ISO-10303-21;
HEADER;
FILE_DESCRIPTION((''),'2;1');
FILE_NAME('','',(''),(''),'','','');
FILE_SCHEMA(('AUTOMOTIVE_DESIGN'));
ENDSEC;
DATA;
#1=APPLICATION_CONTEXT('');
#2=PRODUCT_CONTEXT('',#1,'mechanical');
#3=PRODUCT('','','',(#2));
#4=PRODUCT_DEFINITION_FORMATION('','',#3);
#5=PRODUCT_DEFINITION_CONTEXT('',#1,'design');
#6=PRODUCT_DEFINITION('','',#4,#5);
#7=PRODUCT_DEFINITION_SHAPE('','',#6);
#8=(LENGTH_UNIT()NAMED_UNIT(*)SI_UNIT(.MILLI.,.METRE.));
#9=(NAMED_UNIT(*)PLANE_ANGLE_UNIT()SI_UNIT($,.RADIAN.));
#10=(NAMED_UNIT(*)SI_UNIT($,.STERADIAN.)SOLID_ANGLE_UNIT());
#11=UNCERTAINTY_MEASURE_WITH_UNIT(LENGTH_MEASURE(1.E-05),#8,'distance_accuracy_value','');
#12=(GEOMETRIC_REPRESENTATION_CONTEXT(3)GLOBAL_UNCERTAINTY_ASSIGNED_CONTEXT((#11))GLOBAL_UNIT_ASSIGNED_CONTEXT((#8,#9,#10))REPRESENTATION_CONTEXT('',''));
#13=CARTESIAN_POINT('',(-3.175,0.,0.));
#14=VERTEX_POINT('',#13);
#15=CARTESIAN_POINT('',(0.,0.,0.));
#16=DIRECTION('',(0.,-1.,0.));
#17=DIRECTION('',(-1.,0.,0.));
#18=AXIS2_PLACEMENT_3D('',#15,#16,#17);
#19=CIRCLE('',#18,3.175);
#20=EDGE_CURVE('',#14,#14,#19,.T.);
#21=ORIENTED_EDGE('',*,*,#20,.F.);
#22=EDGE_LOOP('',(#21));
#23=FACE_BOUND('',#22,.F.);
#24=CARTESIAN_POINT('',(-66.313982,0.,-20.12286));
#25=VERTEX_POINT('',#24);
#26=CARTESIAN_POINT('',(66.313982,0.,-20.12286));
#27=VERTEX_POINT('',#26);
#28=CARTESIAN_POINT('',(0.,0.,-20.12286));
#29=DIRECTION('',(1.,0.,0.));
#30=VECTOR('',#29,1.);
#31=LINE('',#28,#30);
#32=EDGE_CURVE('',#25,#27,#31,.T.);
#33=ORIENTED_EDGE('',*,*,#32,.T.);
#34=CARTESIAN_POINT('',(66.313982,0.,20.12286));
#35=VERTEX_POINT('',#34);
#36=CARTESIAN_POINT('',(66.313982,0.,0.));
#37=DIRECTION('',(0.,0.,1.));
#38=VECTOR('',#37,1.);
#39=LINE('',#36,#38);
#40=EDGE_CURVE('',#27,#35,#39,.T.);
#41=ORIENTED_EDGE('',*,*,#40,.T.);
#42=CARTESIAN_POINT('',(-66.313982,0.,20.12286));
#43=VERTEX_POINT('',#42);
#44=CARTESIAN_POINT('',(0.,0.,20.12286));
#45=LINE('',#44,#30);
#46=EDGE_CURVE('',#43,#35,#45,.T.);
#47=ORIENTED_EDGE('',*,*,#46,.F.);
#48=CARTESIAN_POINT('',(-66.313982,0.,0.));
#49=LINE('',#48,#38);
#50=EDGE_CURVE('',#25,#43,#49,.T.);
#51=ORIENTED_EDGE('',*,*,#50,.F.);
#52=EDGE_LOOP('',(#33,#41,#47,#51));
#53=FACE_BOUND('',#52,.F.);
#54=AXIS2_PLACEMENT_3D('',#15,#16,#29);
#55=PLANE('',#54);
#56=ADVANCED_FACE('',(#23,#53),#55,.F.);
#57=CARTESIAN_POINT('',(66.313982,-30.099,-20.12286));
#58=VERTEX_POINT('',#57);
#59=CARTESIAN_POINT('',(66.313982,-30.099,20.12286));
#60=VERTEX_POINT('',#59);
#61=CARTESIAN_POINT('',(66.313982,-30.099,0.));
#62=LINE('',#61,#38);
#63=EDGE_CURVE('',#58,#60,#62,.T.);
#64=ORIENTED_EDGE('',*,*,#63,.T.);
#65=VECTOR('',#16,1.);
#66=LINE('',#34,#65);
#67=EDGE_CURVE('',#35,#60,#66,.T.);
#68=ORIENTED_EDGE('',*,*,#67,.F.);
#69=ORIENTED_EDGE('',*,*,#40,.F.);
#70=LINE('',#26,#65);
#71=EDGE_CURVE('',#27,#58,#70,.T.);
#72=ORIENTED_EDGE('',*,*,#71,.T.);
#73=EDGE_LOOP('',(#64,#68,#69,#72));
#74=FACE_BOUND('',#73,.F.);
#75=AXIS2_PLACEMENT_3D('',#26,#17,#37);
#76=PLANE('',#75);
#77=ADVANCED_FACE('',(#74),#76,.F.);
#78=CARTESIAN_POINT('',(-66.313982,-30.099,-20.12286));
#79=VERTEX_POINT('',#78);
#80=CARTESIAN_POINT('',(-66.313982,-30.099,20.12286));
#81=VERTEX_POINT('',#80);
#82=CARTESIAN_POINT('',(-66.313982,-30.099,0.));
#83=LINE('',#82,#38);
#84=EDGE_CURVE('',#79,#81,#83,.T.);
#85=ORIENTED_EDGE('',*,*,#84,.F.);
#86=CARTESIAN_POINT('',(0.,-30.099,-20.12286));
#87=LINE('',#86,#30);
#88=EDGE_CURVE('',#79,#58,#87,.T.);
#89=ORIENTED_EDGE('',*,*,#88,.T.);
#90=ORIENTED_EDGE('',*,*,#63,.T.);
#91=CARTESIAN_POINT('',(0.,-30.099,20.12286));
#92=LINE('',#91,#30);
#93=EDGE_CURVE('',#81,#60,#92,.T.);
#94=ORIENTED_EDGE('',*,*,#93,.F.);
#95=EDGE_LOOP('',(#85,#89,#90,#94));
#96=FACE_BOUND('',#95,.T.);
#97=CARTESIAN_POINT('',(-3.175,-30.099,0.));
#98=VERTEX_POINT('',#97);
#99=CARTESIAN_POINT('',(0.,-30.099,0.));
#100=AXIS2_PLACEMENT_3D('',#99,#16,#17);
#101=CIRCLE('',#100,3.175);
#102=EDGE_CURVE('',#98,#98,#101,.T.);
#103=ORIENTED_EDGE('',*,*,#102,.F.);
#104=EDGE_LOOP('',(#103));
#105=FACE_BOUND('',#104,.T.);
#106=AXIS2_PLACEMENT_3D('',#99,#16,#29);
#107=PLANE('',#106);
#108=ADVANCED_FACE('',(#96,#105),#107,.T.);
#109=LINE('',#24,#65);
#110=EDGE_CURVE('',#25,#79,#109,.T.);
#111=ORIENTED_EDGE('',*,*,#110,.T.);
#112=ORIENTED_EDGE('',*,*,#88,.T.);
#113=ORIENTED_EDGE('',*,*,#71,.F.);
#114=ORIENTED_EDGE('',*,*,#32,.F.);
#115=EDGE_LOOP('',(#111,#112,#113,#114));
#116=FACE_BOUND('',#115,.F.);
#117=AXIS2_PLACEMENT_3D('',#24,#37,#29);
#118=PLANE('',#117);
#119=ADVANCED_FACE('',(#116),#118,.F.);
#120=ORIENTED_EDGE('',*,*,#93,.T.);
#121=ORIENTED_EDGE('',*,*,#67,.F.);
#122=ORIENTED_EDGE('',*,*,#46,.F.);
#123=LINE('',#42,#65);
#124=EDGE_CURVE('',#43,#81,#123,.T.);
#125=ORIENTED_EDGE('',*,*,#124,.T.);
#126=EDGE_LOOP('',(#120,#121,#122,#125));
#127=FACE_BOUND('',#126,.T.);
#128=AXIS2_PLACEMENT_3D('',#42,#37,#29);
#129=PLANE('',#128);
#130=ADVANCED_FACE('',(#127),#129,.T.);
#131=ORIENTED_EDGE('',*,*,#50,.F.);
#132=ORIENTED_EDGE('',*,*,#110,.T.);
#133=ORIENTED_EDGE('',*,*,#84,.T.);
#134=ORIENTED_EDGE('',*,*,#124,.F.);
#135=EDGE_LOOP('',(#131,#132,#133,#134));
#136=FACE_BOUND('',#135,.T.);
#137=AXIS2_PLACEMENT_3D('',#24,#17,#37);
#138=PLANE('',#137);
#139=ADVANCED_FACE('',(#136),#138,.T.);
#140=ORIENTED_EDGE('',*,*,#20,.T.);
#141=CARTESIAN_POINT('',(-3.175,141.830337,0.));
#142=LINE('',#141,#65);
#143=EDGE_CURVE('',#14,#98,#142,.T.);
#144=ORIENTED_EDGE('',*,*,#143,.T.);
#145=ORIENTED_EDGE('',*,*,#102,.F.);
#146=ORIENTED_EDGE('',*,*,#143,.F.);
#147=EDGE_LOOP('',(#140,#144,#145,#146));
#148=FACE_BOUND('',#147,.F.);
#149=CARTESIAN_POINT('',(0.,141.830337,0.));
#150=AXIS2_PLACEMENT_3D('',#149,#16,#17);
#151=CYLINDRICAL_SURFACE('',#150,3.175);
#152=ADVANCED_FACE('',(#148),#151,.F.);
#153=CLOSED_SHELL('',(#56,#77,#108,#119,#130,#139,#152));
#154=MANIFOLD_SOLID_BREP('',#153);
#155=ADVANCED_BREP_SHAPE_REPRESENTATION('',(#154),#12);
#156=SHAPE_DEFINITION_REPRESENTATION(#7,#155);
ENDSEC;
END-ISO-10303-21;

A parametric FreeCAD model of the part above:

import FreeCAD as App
import Part
import Sketcher
from FreeCAD import Vector
Q = App.Units.Quantity


def add_polygon(sketch, points):
    """Adds a closed chain of lines whose ends are joined by coincident constraints."""
    first, n = sketch.GeometryCount, len(points)
    for a, b in zip(points, points[1:] + points[:1]):
        sketch.addGeometry(Part.LineSegment(App.Vector(*a, 0), App.Vector(*b, 0)), False)
    for i in range(n):
        sketch.addConstraint(Sketcher.Constraint("Coincident", first + i, 2, first + (i + 1) % n, 1))

doc = App.newDocument("Part")
body = doc.addObject("PartDesign::Body", "Body")

# Sketch on XZ plane
sketch1 = doc.addObject("Sketcher::SketchObject", "Sketch")
body.addObject(sketch1)
sketch1.AttachmentSupport = (doc.XZ_Plane, [""])
sketch1.MapMode = "FlatFace"
add_polygon(sketch1, [(-66, 20), (-66, -20), (66, -20), (66, 20)])  # lines 0-3
sketch1.addConstraint(Sketcher.Constraint("Vertical", 0))
sketch1.addConstraint(Sketcher.Constraint("Horizontal", 1))
sketch1.addConstraint(Sketcher.Constraint("Vertical", 2))
sketch1.addConstraint(Sketcher.Constraint("Horizontal", 3))
sketch1.addConstraint(Sketcher.Constraint("Symmetric", 0, 2, 2, 2, -1, 1))
sketch1.addConstraint(Sketcher.Constraint("DistanceY", 0, 2, 0, 1, Q("40.24572 mm")))
sketch1.addConstraint(Sketcher.Constraint("DistanceX", 1, 1, 1, 2, Q("132.627964 mm")))
pad1 = doc.addObject("PartDesign::Pad", "Pad")
body.addObject(pad1)
pad1.Profile = sketch1
pad1.Length = Q("1.185 in")

# Sketch on XZ plane
sketch2 = doc.addObject("Sketcher::SketchObject", "Sketch001")
body.addObject(sketch2)
sketch2.AttachmentSupport = (doc.XZ_Plane, [""])
sketch2.MapMode = "FlatFace"
sketch2.addGeometry(Part.Circle(Vector(0, 0, 0), Vector(0, 0, 1), 3.2), False)
sketch2.addConstraint(Sketcher.Constraint("Coincident", 0, 3, -1, 1))
sketch2.addConstraint(Sketcher.Constraint("Diameter", 0, Q("0.25 in")))
doc.recompute()
hole = doc.addObject("PartDesign::Hole", "Hole")
body.addObject(hole)
hole.Profile = sketch2
hole.ThreadType = "None"
hole.Diameter = Q("0.25 in")
hole.DepthType = "ThroughAll"
hole.Reversed = True

doc.recompute()
